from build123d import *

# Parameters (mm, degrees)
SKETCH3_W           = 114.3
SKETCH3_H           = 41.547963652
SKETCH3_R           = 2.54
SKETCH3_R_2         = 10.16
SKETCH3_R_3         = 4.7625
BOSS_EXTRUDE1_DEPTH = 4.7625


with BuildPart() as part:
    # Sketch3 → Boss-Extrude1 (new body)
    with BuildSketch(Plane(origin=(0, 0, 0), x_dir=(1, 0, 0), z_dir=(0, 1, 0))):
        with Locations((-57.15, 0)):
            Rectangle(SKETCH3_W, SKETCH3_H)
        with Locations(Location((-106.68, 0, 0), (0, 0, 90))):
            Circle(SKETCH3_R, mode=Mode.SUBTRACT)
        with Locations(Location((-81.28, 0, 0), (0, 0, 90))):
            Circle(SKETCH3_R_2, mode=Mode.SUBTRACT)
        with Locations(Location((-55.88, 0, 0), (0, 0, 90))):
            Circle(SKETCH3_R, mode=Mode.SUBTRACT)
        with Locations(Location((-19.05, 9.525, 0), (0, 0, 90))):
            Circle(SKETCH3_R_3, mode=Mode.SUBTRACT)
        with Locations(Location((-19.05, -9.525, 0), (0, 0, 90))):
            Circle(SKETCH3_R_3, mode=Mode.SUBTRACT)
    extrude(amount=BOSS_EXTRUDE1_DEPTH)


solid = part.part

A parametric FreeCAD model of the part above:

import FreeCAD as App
import Part
import Sketcher
Q = App.Units.Quantity


def add_polygon(sketch, points):
    """Adds a closed chain of lines whose ends are joined by coincident constraints."""
    first, n = sketch.GeometryCount, len(points)
    for a, b in zip(points, points[1:] + points[:1]):
        sketch.addGeometry(Part.LineSegment(App.Vector(*a, 0), App.Vector(*b, 0)), False)
    for i in range(n):
        sketch.addConstraint(Sketcher.Constraint("Coincident", first + i, 2, first + (i + 1) % n, 1))

doc = App.newDocument("Part")
body = doc.addObject("PartDesign::Body", "Body")

# Sketch on XZ plane
sketch1 = body.newObject("Sketcher::SketchObject", "Sketch")
sketch1.AttachmentSupport = (doc.getObject("XZ_Plane"), [""])
sketch1.MapMode = "FlatFace"
add_polygon(sketch1, [(-114.3, -20.773982), (-114.3, 20.773982), (0, 20.773982), (0, -20.773982)])  # lines 0-3
sketch1.addGeometry(Part.Circle(App.Vector(-19.05, 9.525, 0), App.Vector(0, 0, 1), 4.7625), False)  # 4
sketch1.addGeometry(Part.Circle(App.Vector(-106.68, 0, 0), App.Vector(0, 0, 1), 2.54), False)  # 5
sketch1.addGeometry(Part.Circle(App.Vector(-81.28, 0, 0), App.Vector(0, 0, 1), 10.16), False)  # 6
sketch1.addGeometry(Part.Circle(App.Vector(-55.88, 0, 0), App.Vector(0, 0, 1), 2.54), False)  # 7
sketch1.addGeometry(Part.Circle(App.Vector(-19.05, -9.525, 0), App.Vector(0, 0, 1), 4.7625), False)  # 8
sketch1.addConstraint(Sketcher.Constraint("Vertical", 0))
sketch1.addConstraint(Sketcher.Constraint("Horizontal", 1))
sketch1.addConstraint(Sketcher.Constraint("Vertical", 2))
sketch1.addConstraint(Sketcher.Constraint("Horizontal", 3))
sketch1.addConstraint(Sketcher.Constraint("Equal", 5, 7))
sketch1.addConstraint(Sketcher.Constraint("Equal", 4, 8))
sketch1.addConstraint(Sketcher.Constraint("Symmetric", 1, 2, 2, 2, -1, 1))
sketch1.addConstraint(Sketcher.Constraint("Symmetric", 4, 3, 8, 3, -1))
sketch1.addConstraint(Sketcher.Constraint("PointOnObject", 5, 3, -1))
sketch1.addConstraint(Sketcher.Constraint("PointOnObject", 6, 3, -1))
sketch1.addConstraint(Sketcher.Constraint("PointOnObject", 7, 3, -1))
sketch1.addConstraint(Sketcher.Constraint("Diameter", 5, Q("0.2 in")))
sketch1.addConstraint(Sketcher.Constraint("Diameter", 6, Q("0.8 in")))
sketch1.addConstraint(Sketcher.Constraint("Diameter", 4, Q("0.375 in")))
sketch1.addConstraint(Sketcher.Constraint("DistanceX", 1, 1, 1, 2, Q("4.5 in")))
sketch1.addConstraint(Sketcher.Constraint("DistanceX", 5, 3, 6, 3, Q("1 in")))
sketch1.addConstraint(Sketcher.Constraint("DistanceX", 6, 3, 7, 3, Q("1 in")))
sketch1.addConstraint(Sketcher.Constraint("DistanceX", 5, 3, -1, 1, Q("4.2 in")))
sketch1.addConstraint(Sketcher.Constraint("DistanceX", 4, 3, -1, 1, Q("0.75 in")))
sketch1.addConstraint(Sketcher.Constraint("DistanceY", 8, 3, 4, 3, Q("0.75 in")))
sketch1.addConstraint(Sketcher.Constraint("DistanceY", 0, 1, 0, 2, Q("41.547964 mm")))
pad1 = body.newObject("PartDesign::Pad", "Pad")
pad1.Profile = sketch1
pad1.Length = Q("0.1875 in")
pad1.Reversed = True

doc.recompute()
